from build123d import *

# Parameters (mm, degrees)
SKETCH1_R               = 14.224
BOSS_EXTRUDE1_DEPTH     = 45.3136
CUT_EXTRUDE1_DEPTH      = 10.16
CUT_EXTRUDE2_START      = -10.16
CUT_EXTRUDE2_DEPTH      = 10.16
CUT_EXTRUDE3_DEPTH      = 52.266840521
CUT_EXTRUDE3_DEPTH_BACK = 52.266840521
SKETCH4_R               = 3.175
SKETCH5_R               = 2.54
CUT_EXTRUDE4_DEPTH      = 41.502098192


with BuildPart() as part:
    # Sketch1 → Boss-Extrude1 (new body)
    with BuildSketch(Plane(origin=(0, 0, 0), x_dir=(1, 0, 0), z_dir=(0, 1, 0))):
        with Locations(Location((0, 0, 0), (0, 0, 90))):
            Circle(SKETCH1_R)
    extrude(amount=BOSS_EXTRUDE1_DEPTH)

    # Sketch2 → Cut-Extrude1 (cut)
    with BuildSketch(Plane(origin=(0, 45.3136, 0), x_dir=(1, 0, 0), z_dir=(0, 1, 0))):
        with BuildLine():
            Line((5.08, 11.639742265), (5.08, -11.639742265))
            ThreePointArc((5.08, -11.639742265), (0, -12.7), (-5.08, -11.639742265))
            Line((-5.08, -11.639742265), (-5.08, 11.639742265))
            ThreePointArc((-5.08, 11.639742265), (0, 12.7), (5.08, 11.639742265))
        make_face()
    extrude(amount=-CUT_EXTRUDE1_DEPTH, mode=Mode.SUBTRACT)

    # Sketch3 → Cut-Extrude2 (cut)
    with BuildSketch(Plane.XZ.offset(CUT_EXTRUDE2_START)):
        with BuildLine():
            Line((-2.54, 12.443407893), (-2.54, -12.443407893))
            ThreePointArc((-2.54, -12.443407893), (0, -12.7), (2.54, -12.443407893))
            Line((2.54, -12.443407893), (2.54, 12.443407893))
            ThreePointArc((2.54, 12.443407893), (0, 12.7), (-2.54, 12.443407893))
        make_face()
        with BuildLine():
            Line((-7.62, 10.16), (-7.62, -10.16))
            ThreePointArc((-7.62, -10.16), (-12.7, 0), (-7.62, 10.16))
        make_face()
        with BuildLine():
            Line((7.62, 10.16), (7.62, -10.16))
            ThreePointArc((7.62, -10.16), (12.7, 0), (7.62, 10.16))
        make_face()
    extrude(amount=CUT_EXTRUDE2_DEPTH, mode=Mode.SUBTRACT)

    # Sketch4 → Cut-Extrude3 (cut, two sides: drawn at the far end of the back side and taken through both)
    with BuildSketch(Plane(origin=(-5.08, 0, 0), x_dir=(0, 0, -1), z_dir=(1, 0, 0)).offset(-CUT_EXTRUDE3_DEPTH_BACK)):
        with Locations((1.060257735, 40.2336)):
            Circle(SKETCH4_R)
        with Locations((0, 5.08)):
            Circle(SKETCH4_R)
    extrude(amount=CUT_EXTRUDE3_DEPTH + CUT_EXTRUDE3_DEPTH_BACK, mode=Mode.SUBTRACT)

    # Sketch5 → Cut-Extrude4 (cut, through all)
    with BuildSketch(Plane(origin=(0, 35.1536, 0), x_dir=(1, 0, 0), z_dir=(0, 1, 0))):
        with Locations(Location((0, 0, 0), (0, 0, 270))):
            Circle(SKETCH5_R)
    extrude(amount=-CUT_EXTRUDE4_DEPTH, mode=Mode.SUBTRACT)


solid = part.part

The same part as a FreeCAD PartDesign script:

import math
import FreeCAD as App
import Part
import Sketcher
from FreeCAD import Vector
Q = App.Units.Quantity

doc = App.newDocument("Part")
body = doc.addObject("PartDesign::Body", "Body")

# Sketch on XZ plane
sketch1 = doc.addObject("Sketcher::SketchObject", "Sketch")
body.addObject(sketch1)
sketch1.AttachmentSupport = (doc.XZ_Plane, [""])
sketch1.MapMode = "FlatFace"
sketch1.addGeometry(Part.Circle(Vector(0, 0, 0), Vector(0, 0, 1), 14.224), False)
sketch1.addConstraint(Sketcher.Constraint("Coincident", 0, 3, -1, 1))
sketch1.addConstraint(Sketcher.Constraint("Diameter", 0, Q("1.12 in")))
pad1 = doc.addObject("PartDesign::Pad", "Pad")
body.addObject(pad1)
pad1.Profile = sketch1
pad1.Length = Q("1.784 in")
pad1.Reversed = True

# Sketch on XZ plane
sketch2 = doc.addObject("Sketcher::SketchObject", "Sketch001")
body.addObject(sketch2)
sketch2.AttachmentSupport = (doc.XZ_Plane, [""])
sketch2.MapMode = "FlatFace"
sketch2.AttachmentOffset = App.Placement(Vector(0, 0, -1.784 * 25.4), App.Rotation())
sketch2.addGeometry(Part.LineSegment(Vector(5.08, 11.639742, 0), Vector(5.08, -11.639742, 0)), False)
sketch2.addGeometry(Part.ArcOfCircle(Part.Circle(Vector(0, 0, 0), Vector(0, 0, 1), 12.7), math.radians(-113.578178), math.radians(-66.421822)), False)
sketch2.addGeometry(Part.LineSegment(Vector(-5.08, -11.639742, 0), Vector(-5.08, 11.639742, 0)), False)
sketch2.addGeometry(Part.ArcOfCircle(Part.Circle(Vector(0, 0, 0), Vector(0, 0, 1), 12.7), math.radians(66.421822), math.radians(113.578178)), False)
sketch2.addConstraint(Sketcher.Constraint("Coincident", 0, 2, 1, 2))
sketch2.addConstraint(Sketcher.Constraint("Coincident", 1, 1, 2, 1))
sketch2.addConstraint(Sketcher.Constraint("Coincident", 2, 2, 3, 2))
sketch2.addConstraint(Sketcher.Constraint("Coincident", 3, 1, 0, 1))
sketch2.addConstraint(Sketcher.Constraint("Vertical", 0))
sketch2.addConstraint(Sketcher.Constraint("Vertical", 2))
sketch2.addConstraint(Sketcher.Constraint("Coincident", 1, 3, -1, 1))
sketch2.addConstraint(Sketcher.Constraint("Coincident", 3, 3, -1, 1))
sketch2.addConstraint(Sketcher.Constraint("Equal", 1, 3))
sketch2.addConstraint(Sketcher.Constraint("Horizontal", 0, 2, 1, 1))
sketch2.addConstraint(Sketcher.Constraint("Radius", 1, Q("0.5 in")))
sketch2.addConstraint(Sketcher.Constraint("DistanceX", -1, 1, 0, 2, Q("0.2 in")))
pocket1 = doc.addObject("PartDesign::Pocket", "Pocket")
body.addObject(pocket1)
pocket1.Profile = sketch2
pocket1.Length = Q("0.4 in")
pocket1.Reversed = True

# Sketch on XZ plane
sketch3 = doc.addObject("Sketcher::SketchObject", "Sketch002")
body.addObject(sketch3)
sketch3.AttachmentSupport = (doc.XZ_Plane, [""])
sketch3.MapMode = "FlatFace"
sketch3.AttachmentOffset = App.Placement(Vector(0, 0, -0.4 * 25.4), App.Rotation())
sketch3.addGeometry(Part.LineSegment(Vector(-2.54, 12.443408, 0), Vector(-2.54, -12.443408, 0)), False)
sketch3.addGeometry(Part.ArcOfCircle(Part.Circle(Vector(0, 0, 0), Vector(0, 0, 1), 12.7), math.radians(-101.536959), math.radians(-78.463041)), False)
sketch3.addGeometry(Part.LineSegment(Vector(2.54, -12.443408, 0), Vector(2.54, 12.443408, 0)), False)
sketch3.addGeometry(Part.ArcOfCircle(Part.Circle(Vector(0, 0, 0), Vector(0, 0, 1), 12.7), math.radians(78.463041), math.radians(101.536959)), False)
sketch3.addGeometry(Part.LineSegment(Vector(-7.62, -10.16, 0), Vector(-7.62, 10.16, 0)), False)
sketch3.addGeometry(Part.ArcOfCircle(Part.Circle(Vector(0, 0, 0), Vector(0, 0, 1), 12.7), math.radians(126.869898), math.radians(233.130102)), False)
sketch3.addGeometry(Part.LineSegment(Vector(7.62, 10.16, 0), Vector(7.62, -10.16, 0)), False)
sketch3.addGeometry(Part.ArcOfCircle(Part.Circle(Vector(0, 0, 0), Vector(0, 0, 1), 12.7), math.radians(-53.130102), math.radians(53.130102)), False)
sketch3.addConstraint(Sketcher.Constraint("Coincident", 0, 2, 1, 1))
sketch3.addConstraint(Sketcher.Constraint("Coincident", 1, 2, 2, 1))
sketch3.addConstraint(Sketcher.Constraint("Coincident", 2, 2, 3, 1))
sketch3.addConstraint(Sketcher.Constraint("Coincident", 3, 2, 0, 1))
sketch3.addConstraint(Sketcher.Constraint("Coincident", 4, 1, 5, 2))
sketch3.addConstraint(Sketcher.Constraint("Coincident", 5, 1, 4, 2))
sketch3.addConstraint(Sketcher.Constraint("Coincident", 6, 1, 7, 2))
sketch3.addConstraint(Sketcher.Constraint("Coincident", 7, 1, 6, 2))
sketch3.addConstraint(Sketcher.Constraint("Vertical", 0))
sketch3.addConstraint(Sketcher.Constraint("Vertical", 2))
sketch3.addConstraint(Sketcher.Constraint("Vertical", 4))
sketch3.addConstraint(Sketcher.Constraint("Vertical", 6))
sketch3.addConstraint(Sketcher.Constraint("Coincident", 1, 3, -1, 1))
sketch3.addConstraint(Sketcher.Constraint("Coincident", 3, 3, -1, 1))
sketch3.addConstraint(Sketcher.Constraint("Coincident", 5, 3, -1, 1))
sketch3.addConstraint(Sketcher.Constraint("Coincident", 7, 3, -1, 1))
sketch3.addConstraint(Sketcher.Constraint("Equal", 1, 3))
sketch3.addConstraint(Sketcher.Constraint("Equal", 3, 5))
sketch3.addConstraint(Sketcher.Constraint("Equal", 5, 7))
sketch3.addConstraint(Sketcher.Constraint("Horizontal", 0, 2, 1, 2))
sketch3.addConstraint(Sketcher.Constraint("Horizontal", 5, 1, 6, 1))
sketch3.addConstraint(Sketcher.Constraint("Radius", 1, Q("0.5 in")))
sketch3.addConstraint(Sketcher.Constraint("DistanceY", 4, 1, 4, 2, Q("0.8 in")))
sketch3.addConstraint(Sketcher.Constraint("DistanceX", 0, 2, -1, 1, Q("0.1 in")))
pocket2 = doc.addObject("PartDesign::Pocket", "Pocket001")
body.addObject(pocket2)
pocket2.Profile = sketch3
pocket2.Length = Q("0.4 in")
pocket2.Reversed = True

# Sketch on YZ plane
sketch4 = doc.addObject("Sketcher::SketchObject", "Sketch003")
body.addObject(sketch4)
sketch4.AttachmentSupport = (doc.YZ_Plane, [""])
sketch4.MapMode = "FlatFace"
sketch4.AttachmentOffset = App.Placement(Vector(0, 0, -0.2 * 25.4), App.Rotation())
sketch4.addGeometry(Part.Circle(Vector(40.2336, -1.060258, 0), Vector(0, 0, 1), 3.175), False)
sketch4.addGeometry(Part.Circle(Vector(5.08, 0, 0), Vector(0, 0, 1), 3.175), False)
sketch4.addConstraint(Sketcher.Constraint("Equal", 0, 1))
sketch4.addConstraint(Sketcher.Constraint("PointOnObject", 1, 3, -1))
sketch4.addConstraint(Sketcher.Constraint("Diameter", 0, Q("0.25 in")))
sketch4.addConstraint(Sketcher.Constraint("DistanceX", -1, 1, 1, 3, Q("0.2 in")))
sketch4.addConstraint(Sketcher.Constraint("DistanceX", -1, 1, 0, 3, Q("1.584 in")))
sketch4.addConstraint(Sketcher.Constraint("DistanceY", 0, 3, -1, 1, Q("1.060258 mm")))
pocket3 = doc.addObject("PartDesign::Pocket", "Pocket002")
body.addObject(pocket3)
pocket3.Profile = sketch4
pocket3.Type = "ThroughAll"
pocket3.Midplane = True

# Sketch on XZ plane
sketch5 = doc.addObject("Sketcher::SketchObject", "Sketch004")
body.addObject(sketch5)
sketch5.AttachmentSupport = (doc.XZ_Plane, [""])
sketch5.MapMode = "FlatFace"
sketch5.AttachmentOffset = App.Placement(Vector(0, 0, -1.384 * 25.4), App.Rotation())
sketch5.addGeometry(Part.Circle(Vector(0, 0, 0), Vector(0, 0, 1), 2.54), False)
sketch5.addConstraint(Sketcher.Constraint("Coincident", 0, 3, -1, 1))
sketch5.addConstraint(Sketcher.Constraint("Diameter", 0, Q("0.2 in")))
pocket4 = doc.addObject("PartDesign::Pocket", "Pocket003")
body.addObject(pocket4)
pocket4.Profile = sketch5
pocket4.Type = "ThroughAll"
pocket4.Reversed = True

doc.recompute()
